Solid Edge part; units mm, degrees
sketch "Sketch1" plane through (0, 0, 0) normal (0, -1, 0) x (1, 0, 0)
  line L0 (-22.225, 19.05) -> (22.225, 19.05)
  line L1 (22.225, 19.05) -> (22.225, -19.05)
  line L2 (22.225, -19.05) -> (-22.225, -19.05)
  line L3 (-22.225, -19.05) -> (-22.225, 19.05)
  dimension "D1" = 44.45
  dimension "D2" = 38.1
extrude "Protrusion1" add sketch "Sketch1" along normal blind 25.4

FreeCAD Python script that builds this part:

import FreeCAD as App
import Part
import Sketcher

V = App.Vector
Q = App.Units.Quantity

doc = App.newDocument("Part")
body = doc.addObject("PartDesign::Body", "Body")

sketch1 = doc.addObject("Sketcher::SketchObject", "Sketch")
body.addObject(sketch1)
sketch1.AttachmentSupport = (doc.XZ_Plane, [""])
sketch1.MapMode = "FlatFace"
sketch1.addGeometry([
    Part.LineSegment(V(22, 19, 0), V(-22, 19, 0)),
    Part.LineSegment(V(-22, 19, 0), V(-22, -19, 0)),
    Part.LineSegment(V(-22, -19, 0), V(22, -19, 0)),
    Part.LineSegment(V(22, -19, 0), V(22, 19, 0)),
], False)
sketch1.addConstraint([
    Sketcher.Constraint("Coincident", 0, 2, 1, 1),
    Sketcher.Constraint("Coincident", 1, 2, 2, 1),
    Sketcher.Constraint("Coincident", 2, 2, 3, 1),
    Sketcher.Constraint("Coincident", 3, 2, 0, 1),
    Sketcher.Constraint("Horizontal", 0),
    Sketcher.Constraint("Vertical", 1),
    Sketcher.Constraint("Horizontal", 2),
    Sketcher.Constraint("Vertical", 3),
    Sketcher.Constraint("Symmetric", 0, 2, 2, 2, -1, 1),
    Sketcher.Constraint("DistanceY", 1, 2, 1, 1, Q("1.5 in")),
    Sketcher.Constraint("DistanceX", 0, 2, -1, 1, Q("0.875 in")),
])
pad1 = doc.addObject("PartDesign::Pad", "Pad")
body.addObject(pad1)
pad1.Profile = sketch1
pad1.Length = Q("1 in")

doc.recompute()
